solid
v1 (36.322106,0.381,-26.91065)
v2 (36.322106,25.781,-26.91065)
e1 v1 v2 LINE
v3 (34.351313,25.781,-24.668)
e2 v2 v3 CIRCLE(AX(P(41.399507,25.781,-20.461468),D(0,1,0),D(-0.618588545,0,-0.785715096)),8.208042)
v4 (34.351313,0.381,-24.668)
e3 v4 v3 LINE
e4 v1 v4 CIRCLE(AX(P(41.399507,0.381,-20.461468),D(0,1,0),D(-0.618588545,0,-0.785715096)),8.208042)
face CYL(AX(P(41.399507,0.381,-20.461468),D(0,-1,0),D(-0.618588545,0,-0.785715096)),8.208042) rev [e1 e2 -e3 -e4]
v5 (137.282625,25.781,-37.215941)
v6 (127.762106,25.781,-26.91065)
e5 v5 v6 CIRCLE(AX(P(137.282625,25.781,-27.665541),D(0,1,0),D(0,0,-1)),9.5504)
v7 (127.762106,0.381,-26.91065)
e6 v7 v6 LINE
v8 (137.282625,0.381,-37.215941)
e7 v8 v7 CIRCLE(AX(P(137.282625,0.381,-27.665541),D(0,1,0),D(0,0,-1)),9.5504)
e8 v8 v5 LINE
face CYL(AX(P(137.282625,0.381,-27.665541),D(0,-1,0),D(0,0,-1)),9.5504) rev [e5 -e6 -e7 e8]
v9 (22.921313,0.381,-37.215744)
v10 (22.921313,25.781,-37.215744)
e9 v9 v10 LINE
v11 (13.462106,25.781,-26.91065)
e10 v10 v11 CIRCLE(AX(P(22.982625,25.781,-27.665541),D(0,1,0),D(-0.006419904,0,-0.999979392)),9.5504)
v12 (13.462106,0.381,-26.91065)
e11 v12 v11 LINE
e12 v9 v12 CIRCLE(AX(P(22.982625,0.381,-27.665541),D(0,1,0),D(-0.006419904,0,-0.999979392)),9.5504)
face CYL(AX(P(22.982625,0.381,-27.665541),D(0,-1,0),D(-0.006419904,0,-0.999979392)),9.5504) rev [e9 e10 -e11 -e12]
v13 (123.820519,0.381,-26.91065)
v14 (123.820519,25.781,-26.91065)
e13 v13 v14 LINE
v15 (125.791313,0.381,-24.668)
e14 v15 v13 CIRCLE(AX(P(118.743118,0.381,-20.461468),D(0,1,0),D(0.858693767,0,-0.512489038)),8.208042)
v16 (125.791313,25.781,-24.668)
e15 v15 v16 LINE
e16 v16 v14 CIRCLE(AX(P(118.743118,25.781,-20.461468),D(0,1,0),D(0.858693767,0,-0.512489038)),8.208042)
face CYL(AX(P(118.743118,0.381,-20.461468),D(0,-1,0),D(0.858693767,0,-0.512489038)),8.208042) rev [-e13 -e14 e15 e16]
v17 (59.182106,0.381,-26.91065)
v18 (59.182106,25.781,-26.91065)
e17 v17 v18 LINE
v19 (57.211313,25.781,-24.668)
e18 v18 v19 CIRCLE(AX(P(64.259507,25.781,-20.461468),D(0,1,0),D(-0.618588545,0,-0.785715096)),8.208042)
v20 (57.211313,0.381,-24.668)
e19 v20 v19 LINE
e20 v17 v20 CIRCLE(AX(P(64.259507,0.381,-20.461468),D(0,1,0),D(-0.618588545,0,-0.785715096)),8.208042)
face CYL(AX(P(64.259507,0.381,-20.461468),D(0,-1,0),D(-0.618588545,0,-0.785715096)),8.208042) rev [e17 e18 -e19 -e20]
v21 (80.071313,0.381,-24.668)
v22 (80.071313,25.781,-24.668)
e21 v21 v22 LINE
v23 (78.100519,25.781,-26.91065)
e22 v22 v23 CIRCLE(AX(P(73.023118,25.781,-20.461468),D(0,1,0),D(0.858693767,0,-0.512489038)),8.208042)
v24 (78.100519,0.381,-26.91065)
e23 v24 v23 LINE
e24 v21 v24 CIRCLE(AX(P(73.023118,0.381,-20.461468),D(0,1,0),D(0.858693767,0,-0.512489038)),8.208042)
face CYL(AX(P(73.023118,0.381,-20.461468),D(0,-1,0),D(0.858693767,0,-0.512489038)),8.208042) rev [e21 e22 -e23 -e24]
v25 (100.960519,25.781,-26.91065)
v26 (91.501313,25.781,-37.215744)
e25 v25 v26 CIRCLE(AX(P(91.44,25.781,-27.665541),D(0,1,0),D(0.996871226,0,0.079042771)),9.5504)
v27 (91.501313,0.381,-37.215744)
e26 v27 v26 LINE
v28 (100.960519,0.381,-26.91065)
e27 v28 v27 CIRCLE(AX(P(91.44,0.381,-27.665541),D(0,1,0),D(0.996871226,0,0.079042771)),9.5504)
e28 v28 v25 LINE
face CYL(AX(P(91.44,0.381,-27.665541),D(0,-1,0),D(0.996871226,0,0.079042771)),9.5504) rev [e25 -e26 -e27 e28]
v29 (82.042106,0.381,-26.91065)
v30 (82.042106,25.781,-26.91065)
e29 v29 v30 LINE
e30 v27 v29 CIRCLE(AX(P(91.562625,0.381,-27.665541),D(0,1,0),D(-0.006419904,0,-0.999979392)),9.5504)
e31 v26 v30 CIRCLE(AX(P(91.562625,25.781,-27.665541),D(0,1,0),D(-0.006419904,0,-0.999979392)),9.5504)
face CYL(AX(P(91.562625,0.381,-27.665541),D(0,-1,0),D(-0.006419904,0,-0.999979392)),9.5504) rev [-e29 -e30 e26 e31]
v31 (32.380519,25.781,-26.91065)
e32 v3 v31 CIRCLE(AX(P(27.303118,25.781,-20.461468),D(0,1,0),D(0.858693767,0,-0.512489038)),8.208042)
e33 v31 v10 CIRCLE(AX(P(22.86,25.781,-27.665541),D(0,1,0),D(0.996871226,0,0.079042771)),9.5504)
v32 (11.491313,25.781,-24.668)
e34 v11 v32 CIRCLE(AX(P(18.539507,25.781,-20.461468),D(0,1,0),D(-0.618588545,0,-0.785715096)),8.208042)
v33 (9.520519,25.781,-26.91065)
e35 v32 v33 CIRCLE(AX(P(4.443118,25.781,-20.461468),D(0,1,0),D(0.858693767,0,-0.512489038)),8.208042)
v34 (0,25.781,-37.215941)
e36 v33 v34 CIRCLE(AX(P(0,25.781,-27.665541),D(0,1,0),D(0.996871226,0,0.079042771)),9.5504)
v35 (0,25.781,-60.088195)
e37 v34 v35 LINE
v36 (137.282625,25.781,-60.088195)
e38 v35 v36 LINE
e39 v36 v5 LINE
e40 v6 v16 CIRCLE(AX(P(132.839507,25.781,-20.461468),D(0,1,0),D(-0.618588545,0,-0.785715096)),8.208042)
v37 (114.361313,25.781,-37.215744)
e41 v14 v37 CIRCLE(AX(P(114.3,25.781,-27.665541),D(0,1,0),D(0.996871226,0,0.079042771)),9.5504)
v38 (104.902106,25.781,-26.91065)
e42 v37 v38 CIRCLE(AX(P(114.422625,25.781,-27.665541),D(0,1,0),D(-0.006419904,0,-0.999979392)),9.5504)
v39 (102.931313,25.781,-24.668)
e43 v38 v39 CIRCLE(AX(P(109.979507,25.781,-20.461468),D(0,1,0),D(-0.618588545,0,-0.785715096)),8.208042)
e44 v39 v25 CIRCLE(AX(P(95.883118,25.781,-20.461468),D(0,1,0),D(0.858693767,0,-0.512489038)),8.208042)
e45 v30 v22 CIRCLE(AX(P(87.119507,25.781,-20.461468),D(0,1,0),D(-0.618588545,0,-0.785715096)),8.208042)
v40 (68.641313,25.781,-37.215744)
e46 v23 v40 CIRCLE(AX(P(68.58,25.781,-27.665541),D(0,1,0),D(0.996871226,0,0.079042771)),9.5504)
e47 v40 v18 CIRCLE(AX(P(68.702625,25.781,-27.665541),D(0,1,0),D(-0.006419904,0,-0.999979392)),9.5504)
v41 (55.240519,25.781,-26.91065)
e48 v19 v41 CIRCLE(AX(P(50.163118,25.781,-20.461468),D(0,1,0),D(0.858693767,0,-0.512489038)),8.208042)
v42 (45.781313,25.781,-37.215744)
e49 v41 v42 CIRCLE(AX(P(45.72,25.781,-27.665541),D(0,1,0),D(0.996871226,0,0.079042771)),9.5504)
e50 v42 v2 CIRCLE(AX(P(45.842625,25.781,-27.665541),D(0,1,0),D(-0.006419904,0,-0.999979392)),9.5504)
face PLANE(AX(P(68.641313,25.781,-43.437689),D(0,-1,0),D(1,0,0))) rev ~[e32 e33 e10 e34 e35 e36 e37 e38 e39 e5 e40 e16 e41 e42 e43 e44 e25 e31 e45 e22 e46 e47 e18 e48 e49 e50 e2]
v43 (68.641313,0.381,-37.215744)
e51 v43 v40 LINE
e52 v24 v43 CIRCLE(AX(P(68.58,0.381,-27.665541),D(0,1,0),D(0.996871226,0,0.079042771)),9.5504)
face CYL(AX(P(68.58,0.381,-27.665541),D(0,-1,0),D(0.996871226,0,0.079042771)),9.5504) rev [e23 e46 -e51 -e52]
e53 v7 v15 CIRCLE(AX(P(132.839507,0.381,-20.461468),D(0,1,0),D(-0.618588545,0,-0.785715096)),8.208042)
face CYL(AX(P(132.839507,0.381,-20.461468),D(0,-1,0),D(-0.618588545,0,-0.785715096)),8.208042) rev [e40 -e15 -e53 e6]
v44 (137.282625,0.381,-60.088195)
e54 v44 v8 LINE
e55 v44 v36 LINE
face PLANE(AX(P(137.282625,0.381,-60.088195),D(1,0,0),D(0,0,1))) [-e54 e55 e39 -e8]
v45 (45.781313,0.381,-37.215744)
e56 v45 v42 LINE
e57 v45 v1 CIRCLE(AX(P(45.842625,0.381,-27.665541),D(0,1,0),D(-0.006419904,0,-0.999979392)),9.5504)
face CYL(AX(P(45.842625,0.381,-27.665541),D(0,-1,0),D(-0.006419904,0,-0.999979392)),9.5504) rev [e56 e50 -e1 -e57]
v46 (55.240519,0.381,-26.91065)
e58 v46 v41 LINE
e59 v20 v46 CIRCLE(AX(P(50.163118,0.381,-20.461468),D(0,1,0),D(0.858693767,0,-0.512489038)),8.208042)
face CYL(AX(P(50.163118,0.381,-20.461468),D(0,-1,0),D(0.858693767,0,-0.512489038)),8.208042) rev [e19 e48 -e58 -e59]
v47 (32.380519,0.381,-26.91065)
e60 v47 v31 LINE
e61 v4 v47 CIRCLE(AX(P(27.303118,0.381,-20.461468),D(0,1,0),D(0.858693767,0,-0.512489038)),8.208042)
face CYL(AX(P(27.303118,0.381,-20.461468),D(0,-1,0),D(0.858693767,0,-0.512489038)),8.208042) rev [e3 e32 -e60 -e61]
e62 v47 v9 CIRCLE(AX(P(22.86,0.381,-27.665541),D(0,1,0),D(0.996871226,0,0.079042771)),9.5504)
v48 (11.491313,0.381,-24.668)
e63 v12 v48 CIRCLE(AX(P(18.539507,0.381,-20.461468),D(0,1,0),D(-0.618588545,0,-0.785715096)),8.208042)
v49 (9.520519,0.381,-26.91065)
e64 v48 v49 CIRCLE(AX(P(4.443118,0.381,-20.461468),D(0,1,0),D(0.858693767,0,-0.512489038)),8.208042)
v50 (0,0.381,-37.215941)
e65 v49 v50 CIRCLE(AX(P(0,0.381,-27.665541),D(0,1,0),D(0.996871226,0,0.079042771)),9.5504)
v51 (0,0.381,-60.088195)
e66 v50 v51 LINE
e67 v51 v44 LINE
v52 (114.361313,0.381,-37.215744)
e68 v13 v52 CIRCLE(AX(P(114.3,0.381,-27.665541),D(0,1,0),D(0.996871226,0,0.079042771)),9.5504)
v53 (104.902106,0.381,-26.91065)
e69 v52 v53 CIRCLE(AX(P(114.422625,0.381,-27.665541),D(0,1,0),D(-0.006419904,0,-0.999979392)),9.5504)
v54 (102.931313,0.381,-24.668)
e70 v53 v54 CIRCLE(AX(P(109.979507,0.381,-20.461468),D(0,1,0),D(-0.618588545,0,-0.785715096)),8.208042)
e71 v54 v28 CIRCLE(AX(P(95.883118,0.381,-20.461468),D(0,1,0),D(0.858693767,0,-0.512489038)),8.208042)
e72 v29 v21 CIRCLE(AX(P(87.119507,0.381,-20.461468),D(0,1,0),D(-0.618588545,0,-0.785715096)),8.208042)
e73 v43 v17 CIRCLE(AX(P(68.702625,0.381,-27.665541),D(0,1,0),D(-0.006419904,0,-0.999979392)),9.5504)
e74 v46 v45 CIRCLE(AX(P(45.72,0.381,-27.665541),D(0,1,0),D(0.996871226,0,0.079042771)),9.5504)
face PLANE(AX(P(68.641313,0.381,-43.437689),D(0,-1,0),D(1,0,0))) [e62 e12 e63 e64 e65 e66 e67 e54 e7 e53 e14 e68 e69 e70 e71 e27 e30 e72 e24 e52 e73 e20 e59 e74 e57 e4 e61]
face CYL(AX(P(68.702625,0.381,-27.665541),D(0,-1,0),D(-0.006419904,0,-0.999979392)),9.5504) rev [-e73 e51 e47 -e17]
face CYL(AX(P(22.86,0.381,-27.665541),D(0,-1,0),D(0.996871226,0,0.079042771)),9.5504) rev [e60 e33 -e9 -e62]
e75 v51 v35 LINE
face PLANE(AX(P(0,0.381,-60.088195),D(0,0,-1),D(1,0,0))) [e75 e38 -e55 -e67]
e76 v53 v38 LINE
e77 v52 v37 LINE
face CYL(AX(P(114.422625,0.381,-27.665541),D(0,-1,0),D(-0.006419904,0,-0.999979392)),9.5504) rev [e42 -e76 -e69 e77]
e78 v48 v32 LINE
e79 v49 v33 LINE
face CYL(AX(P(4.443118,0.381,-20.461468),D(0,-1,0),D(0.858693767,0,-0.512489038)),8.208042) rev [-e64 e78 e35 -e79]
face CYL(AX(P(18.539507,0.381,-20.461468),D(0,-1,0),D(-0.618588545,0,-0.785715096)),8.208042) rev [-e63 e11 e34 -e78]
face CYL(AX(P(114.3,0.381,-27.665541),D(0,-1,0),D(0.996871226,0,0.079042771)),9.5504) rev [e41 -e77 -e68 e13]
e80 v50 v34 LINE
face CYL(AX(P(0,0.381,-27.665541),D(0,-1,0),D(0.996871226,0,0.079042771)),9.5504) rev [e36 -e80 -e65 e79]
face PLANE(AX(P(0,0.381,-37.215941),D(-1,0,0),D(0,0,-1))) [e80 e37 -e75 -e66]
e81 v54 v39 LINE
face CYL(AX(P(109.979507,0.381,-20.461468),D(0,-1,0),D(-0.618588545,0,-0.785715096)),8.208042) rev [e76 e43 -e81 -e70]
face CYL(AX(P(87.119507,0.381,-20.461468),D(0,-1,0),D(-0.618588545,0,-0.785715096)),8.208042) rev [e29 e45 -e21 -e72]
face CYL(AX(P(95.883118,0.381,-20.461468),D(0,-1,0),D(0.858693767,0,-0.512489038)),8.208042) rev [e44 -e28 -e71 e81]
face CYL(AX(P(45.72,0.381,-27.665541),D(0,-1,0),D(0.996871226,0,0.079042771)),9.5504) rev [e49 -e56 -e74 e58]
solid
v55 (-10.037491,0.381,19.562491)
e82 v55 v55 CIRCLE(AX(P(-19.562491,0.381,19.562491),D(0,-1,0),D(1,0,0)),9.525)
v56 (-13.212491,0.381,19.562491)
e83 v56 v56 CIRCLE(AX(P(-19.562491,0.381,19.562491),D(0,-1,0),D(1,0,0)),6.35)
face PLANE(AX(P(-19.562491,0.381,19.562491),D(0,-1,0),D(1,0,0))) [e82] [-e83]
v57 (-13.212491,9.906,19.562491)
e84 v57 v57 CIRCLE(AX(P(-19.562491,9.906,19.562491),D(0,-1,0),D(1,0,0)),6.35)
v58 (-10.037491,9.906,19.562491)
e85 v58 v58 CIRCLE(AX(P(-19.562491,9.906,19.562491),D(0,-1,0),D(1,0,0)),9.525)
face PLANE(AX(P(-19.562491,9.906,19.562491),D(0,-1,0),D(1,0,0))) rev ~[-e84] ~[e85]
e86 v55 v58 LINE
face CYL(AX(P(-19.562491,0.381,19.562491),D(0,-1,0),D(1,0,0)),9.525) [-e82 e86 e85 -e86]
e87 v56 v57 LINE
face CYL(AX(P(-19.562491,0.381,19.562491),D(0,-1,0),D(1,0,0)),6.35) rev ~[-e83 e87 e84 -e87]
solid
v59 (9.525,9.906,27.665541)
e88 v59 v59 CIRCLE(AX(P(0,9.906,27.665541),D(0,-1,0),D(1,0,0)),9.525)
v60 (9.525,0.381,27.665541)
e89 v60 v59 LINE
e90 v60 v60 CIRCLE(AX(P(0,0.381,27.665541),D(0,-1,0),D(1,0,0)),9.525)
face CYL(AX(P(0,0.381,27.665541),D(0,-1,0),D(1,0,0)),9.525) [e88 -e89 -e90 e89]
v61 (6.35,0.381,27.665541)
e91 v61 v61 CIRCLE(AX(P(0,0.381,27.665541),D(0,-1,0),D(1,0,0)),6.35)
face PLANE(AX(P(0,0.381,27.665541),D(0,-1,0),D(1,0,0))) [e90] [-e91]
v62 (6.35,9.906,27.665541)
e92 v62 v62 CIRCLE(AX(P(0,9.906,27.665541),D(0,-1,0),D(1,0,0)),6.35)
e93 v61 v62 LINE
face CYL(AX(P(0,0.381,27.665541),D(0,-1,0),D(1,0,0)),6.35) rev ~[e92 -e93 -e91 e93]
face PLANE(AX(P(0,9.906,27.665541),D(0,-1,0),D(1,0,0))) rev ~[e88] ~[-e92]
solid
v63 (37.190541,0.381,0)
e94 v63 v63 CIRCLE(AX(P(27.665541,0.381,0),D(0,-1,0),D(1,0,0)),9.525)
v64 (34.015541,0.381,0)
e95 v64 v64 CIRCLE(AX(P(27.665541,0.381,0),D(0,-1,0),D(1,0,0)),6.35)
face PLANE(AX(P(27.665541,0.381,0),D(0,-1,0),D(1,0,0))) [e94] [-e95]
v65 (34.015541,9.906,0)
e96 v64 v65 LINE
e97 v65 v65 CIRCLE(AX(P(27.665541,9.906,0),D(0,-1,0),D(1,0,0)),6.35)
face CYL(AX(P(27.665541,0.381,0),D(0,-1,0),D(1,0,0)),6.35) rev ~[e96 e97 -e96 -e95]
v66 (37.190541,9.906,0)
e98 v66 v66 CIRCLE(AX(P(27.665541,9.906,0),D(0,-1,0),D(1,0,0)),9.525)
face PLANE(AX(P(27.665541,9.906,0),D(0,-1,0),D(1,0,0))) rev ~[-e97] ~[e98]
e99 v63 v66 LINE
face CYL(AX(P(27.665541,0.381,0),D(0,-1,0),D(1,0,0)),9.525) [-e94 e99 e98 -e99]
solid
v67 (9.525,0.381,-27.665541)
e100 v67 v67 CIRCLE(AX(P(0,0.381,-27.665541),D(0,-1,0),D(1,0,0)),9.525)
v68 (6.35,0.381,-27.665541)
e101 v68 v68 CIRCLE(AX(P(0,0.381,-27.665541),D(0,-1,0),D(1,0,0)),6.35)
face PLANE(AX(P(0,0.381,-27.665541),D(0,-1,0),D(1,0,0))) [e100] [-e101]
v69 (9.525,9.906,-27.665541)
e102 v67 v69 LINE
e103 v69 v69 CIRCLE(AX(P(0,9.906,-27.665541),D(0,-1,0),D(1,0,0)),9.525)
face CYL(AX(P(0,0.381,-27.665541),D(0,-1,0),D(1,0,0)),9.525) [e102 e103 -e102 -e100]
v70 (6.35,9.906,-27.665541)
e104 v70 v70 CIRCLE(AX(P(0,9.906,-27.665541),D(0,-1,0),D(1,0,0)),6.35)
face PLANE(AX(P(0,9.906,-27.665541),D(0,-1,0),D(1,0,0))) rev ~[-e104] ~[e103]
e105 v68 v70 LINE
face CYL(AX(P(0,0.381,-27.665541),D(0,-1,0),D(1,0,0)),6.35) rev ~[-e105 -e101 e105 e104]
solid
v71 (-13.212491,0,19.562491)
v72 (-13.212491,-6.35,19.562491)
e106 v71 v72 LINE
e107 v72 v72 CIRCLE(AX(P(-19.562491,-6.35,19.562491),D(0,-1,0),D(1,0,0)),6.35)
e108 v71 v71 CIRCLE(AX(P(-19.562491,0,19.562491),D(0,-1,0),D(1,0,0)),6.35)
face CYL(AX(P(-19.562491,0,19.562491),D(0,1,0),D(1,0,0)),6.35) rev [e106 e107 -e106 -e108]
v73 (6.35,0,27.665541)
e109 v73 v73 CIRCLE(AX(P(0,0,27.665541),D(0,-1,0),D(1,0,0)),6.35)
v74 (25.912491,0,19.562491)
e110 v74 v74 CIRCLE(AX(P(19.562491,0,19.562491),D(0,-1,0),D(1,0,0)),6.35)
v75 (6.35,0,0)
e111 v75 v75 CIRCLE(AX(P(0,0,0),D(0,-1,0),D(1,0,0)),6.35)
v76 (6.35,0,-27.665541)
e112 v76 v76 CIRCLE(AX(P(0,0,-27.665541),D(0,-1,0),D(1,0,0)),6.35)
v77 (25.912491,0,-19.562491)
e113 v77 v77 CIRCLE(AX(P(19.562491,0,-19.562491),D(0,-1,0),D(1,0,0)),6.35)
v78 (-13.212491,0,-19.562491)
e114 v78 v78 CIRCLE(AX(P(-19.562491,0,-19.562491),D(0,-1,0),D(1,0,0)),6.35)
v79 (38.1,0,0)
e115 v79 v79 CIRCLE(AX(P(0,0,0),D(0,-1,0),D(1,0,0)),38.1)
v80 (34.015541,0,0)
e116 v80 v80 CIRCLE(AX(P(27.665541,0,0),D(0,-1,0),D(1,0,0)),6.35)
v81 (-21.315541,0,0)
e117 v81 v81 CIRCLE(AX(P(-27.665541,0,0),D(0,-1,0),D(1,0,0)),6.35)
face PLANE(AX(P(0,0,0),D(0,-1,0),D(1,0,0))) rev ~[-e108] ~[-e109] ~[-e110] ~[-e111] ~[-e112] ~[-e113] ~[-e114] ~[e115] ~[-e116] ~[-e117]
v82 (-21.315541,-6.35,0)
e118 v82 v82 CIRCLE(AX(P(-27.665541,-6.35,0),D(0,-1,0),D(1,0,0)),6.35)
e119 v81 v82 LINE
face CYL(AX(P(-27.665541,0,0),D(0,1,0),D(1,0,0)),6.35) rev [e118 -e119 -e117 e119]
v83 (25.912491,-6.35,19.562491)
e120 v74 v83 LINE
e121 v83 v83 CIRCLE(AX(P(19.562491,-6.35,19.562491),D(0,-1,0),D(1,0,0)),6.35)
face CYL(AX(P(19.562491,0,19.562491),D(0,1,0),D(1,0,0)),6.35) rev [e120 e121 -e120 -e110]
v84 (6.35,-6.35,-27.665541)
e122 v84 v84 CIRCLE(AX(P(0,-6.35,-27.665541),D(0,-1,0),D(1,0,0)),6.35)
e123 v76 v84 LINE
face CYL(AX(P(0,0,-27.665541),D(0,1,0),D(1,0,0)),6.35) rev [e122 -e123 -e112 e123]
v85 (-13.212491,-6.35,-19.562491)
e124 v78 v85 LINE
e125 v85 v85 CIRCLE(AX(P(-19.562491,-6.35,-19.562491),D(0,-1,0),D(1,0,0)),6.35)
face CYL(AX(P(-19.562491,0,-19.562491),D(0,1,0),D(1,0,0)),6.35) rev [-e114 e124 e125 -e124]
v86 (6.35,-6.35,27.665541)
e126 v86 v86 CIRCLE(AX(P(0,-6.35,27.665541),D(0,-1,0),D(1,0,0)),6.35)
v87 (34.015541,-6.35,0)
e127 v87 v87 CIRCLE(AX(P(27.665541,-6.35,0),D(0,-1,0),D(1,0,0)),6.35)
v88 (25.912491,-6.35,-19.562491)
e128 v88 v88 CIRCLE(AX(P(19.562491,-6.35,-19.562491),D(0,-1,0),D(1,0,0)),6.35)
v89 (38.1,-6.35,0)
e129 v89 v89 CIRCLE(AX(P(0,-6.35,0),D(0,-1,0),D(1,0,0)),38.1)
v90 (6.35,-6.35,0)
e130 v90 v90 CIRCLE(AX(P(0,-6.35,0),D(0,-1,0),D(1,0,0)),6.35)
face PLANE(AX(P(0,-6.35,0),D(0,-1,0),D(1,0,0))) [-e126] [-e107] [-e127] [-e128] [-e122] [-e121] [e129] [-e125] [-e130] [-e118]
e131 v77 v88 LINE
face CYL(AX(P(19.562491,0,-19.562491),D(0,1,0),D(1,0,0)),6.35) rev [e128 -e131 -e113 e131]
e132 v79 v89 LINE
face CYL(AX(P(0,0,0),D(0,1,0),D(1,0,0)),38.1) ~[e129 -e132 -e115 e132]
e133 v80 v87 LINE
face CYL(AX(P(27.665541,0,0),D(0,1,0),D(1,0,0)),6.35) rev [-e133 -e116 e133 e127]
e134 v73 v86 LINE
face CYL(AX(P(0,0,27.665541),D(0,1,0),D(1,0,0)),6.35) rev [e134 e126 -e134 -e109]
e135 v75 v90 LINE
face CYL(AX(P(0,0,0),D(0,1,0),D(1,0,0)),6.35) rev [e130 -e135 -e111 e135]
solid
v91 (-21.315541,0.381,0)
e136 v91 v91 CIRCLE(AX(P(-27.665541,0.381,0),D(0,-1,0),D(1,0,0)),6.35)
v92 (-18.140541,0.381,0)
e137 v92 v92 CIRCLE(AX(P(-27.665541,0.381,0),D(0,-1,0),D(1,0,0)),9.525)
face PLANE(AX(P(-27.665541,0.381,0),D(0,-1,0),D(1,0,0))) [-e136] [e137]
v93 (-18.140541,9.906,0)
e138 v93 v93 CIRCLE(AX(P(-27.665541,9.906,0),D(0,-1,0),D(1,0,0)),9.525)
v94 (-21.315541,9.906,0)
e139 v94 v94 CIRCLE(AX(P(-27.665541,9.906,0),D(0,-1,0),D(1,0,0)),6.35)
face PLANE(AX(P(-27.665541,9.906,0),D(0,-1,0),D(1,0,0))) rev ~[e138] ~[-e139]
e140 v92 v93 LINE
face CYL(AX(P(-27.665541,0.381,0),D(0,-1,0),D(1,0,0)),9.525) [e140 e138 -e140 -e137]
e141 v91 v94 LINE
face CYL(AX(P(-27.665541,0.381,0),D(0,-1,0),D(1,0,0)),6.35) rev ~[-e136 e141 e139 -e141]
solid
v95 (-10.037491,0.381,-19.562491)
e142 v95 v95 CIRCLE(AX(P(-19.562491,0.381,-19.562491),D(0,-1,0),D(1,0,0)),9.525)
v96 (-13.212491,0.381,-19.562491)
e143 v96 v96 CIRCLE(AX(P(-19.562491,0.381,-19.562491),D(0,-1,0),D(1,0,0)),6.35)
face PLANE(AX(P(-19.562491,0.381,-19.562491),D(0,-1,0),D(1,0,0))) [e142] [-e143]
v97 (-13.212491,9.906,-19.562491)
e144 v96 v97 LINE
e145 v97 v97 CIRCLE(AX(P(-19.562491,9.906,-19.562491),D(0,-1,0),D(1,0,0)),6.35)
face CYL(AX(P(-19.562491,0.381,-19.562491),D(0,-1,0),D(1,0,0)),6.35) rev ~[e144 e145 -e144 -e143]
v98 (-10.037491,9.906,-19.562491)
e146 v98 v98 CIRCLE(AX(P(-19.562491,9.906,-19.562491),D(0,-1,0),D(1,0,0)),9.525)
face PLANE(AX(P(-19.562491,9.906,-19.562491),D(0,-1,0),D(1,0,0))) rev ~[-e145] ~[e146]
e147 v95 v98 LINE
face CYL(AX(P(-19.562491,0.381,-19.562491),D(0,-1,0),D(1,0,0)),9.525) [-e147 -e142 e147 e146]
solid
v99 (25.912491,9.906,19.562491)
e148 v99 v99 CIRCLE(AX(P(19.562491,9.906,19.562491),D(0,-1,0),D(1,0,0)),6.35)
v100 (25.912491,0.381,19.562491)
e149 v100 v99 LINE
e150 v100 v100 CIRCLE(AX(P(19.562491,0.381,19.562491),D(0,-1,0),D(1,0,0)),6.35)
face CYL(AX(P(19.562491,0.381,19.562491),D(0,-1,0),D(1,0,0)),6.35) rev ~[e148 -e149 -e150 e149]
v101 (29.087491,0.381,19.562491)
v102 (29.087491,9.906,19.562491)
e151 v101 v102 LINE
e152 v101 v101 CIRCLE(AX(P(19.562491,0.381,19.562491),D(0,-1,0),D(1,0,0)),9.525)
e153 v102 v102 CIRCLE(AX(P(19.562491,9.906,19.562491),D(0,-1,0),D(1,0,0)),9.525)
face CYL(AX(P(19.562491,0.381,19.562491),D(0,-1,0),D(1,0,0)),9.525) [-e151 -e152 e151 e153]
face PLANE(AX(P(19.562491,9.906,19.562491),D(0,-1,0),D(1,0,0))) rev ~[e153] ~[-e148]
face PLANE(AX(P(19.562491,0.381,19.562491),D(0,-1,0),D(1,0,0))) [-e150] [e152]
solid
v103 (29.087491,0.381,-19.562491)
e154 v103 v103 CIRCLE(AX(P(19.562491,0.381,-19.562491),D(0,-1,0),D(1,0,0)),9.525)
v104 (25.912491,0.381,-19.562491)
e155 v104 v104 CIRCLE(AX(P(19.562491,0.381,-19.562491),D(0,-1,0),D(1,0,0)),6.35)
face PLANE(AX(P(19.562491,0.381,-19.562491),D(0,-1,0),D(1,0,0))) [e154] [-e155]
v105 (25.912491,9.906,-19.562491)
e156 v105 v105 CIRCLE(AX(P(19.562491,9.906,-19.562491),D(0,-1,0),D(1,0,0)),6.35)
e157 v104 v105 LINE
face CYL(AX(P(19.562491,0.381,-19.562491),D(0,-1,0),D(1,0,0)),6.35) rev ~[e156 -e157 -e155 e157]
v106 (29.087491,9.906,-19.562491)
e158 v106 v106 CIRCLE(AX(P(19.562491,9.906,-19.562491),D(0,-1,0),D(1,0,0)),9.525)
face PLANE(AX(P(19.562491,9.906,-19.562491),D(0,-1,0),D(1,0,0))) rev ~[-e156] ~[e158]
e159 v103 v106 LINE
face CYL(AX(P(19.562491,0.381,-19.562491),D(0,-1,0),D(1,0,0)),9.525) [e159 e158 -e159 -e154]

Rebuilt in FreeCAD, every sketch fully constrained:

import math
import FreeCAD as App
import Part
import Sketcher

V = App.Vector
Q = App.Units.Quantity

doc = App.newDocument("Part")
body = doc.addObject("PartDesign::Body", "Body")

sketch1 = body.newObject("Sketcher::SketchObject", "Sketch")
sketch1.AttachmentSupport = (doc.getObject("XZ_Plane"), [""])
sketch1.MapMode = "FlatFace"
sketch1.addGeometry(Part.Circle(V(0, 0, 0), V(0, 0, 1), 38), False)
sketch1.addGeometry(Part.Circle(V(-20, -20, 0), V(0, 0, 1), 6), False)
sketch1.addGeometry(Part.Circle(V(0, -28, 0), V(0, 0, 1), 6), False)
sketch1.addGeometry(Part.Circle(V(20, -20, 0), V(0, 0, 1), 6), False)
sketch1.addGeometry(Part.Circle(V(-28, 0, 0), V(0, 0, 1), 6), False)
sketch1.addGeometry(Part.Circle(V(-20, 20, 0), V(0, 0, 1), 6), False)
sketch1.addGeometry(Part.Circle(V(0, 0, 0), V(0, 0, 1), 6), False)
sketch1.addGeometry(Part.Circle(V(28, 0, 0), V(0, 0, 1), 6), False)
sketch1.addGeometry(Part.Circle(V(0, 28, 0), V(0, 0, 1), 6), False)
sketch1.addGeometry(Part.Circle(V(20, 20, 0), V(0, 0, 1), 6), False)
sketch1.addConstraint(Sketcher.Constraint("Coincident", 0, 3, -1, 1))
sketch1.addConstraint(Sketcher.Constraint("Coincident", 6, 3, -1, 1))
sketch1.addConstraint(Sketcher.Constraint("Equal", 1, 2))
sketch1.addConstraint(Sketcher.Constraint("Equal", 2, 3))
sketch1.addConstraint(Sketcher.Constraint("Equal", 3, 4))
sketch1.addConstraint(Sketcher.Constraint("Equal", 4, 5))
sketch1.addConstraint(Sketcher.Constraint("Equal", 5, 6))
sketch1.addConstraint(Sketcher.Constraint("Equal", 6, 7))
sketch1.addConstraint(Sketcher.Constraint("Equal", 7, 8))
sketch1.addConstraint(Sketcher.Constraint("Equal", 8, 9))
sketch1.addConstraint(Sketcher.Constraint("Symmetric", 3, 3, 5, 3, -1, 1))
sketch1.addConstraint(Sketcher.Constraint("Symmetric", 4, 3, 7, 3, -1, 1))
sketch1.addConstraint(Sketcher.Constraint("Symmetric", 2, 3, 8, 3, -1, 1))
sketch1.addConstraint(Sketcher.Constraint("Symmetric", 1, 3, 9, 3, -1, 1))
sketch1.addConstraint(Sketcher.Constraint("Symmetric", 1, 3, 3, 3, -2))
sketch1.addConstraint(Sketcher.Constraint("PointOnObject", 2, 3, -2))
sketch1.addConstraint(Sketcher.Constraint("PointOnObject", 4, 3, -1))
sketch1.addConstraint(Sketcher.Constraint("Diameter", 0, Q("3 in")))
sketch1.addConstraint(Sketcher.Constraint("Diameter", 1, Q("0.5 in")))
sketch1.addConstraint(Sketcher.Constraint("DistanceX", 1, 3, -1, 1, Q("19.562491 mm")))
sketch1.addConstraint(Sketcher.Constraint("DistanceY", 1, 3, -1, 1, Q("19.562491 mm")))
sketch1.addConstraint(Sketcher.Constraint("DistanceY", 2, 3, -1, 1, Q("27.665541 mm")))
sketch1.addConstraint(Sketcher.Constraint("DistanceX", 4, 3, -1, 1, Q("27.665541 mm")))
pad1 = body.newObject("PartDesign::Pad", "Pad")
pad1.Profile = sketch1
pad1.Length = Q("0.25 in")
body2 = doc.addObject("PartDesign::Body", "Body001")

sketch2 = body2.newObject("Sketcher::SketchObject", "Sketch001")
sketch2.AttachmentSupport = (doc.getObject("XZ_Plane001"), [""])
sketch2.MapMode = "FlatFace"
sketch2.AttachmentOffset = App.Placement(V(0, 0, -0.015 * 25.4), App.Rotation())
sketch2.addGeometry(Part.Circle(V(0, -28, 0), V(0, 0, 1), 10), False)
sketch2.addGeometry(Part.Circle(V(0, -28, 0), V(0, 0, 1), 6), False)
sketch2.addConstraint(Sketcher.Constraint("Coincident", 1, 3, 0, 3))
sketch2.addConstraint(Sketcher.Constraint("PointOnObject", 0, 3, -2))
sketch2.addConstraint(Sketcher.Constraint("Diameter", 1, Q("0.5 in")))
sketch2.addConstraint(Sketcher.Constraint("Diameter", 0, Q("0.75 in")))
sketch2.addConstraint(Sketcher.Constraint("DistanceY", 0, 3, -1, 1, Q("27.665541 mm")))
pad2 = body2.newObject("PartDesign::Pad", "Pad001")
pad2.Profile = sketch2
pad2.Length = Q("0.375 in")
pad2.Reversed = True
body3 = doc.addObject("PartDesign::Body", "Body002")

sketch3 = body3.newObject("Sketcher::SketchObject", "Sketch002")
sketch3.AttachmentSupport = (doc.getObject("XZ_Plane002"), [""])
sketch3.MapMode = "FlatFace"
sketch3.AttachmentOffset = App.Placement(V(0, 0, -0.015 * 25.4), App.Rotation())
sketch3.addGeometry(Part.Circle(V(20, -20, 0), V(0, 0, 1), 10), False)
sketch3.addGeometry(Part.Circle(V(20, -20, 0), V(0, 0, 1), 6), False)
sketch3.addConstraint(Sketcher.Constraint("Coincident", 1, 3, 0, 3))
sketch3.addConstraint(Sketcher.Constraint("Diameter", 1, Q("0.5 in")))
sketch3.addConstraint(Sketcher.Constraint("Diameter", 0, Q("0.75 in")))
sketch3.addConstraint(Sketcher.Constraint("DistanceX", -1, 1, 0, 3, Q("19.562491 mm")))
sketch3.addConstraint(Sketcher.Constraint("DistanceY", 0, 3, -1, 1, Q("19.562491 mm")))
pad3 = body3.newObject("PartDesign::Pad", "Pad002")
pad3.Profile = sketch3
pad3.Length = Q("0.375 in")
pad3.Reversed = True
body4 = doc.addObject("PartDesign::Body", "Body003")

sketch4 = body4.newObject("Sketcher::SketchObject", "Sketch003")
sketch4.AttachmentSupport = (doc.getObject("XZ_Plane003"), [""])
sketch4.MapMode = "FlatFace"
sketch4.AttachmentOffset = App.Placement(V(0, 0, -0.015 * 25.4), App.Rotation())
sketch4.addGeometry(Part.Circle(V(28, 0, 0), V(0, 0, 1), 10), False)
sketch4.addGeometry(Part.Circle(V(28, 0, 0), V(0, 0, 1), 6), False)
sketch4.addConstraint(Sketcher.Constraint("Coincident", 1, 3, 0, 3))
sketch4.addConstraint(Sketcher.Constraint("PointOnObject", 0, 3, -1))
sketch4.addConstraint(Sketcher.Constraint("Diameter", 1, Q("0.5 in")))
sketch4.addConstraint(Sketcher.Constraint("Diameter", 0, Q("0.75 in")))
sketch4.addConstraint(Sketcher.Constraint("DistanceX", -1, 1, 0, 3, Q("27.665541 mm")))
pad4 = body4.newObject("PartDesign::Pad", "Pad003")
pad4.Profile = sketch4
pad4.Length = Q("0.375 in")
pad4.Reversed = True
body5 = doc.addObject("PartDesign::Body", "Body004")

sketch5 = body5.newObject("Sketcher::SketchObject", "Sketch004")
sketch5.AttachmentSupport = (doc.getObject("XZ_Plane004"), [""])
sketch5.MapMode = "FlatFace"
sketch5.AttachmentOffset = App.Placement(V(0, 0, -0.015 * 25.4), App.Rotation())
sketch5.addGeometry(Part.Circle(V(20, 20, 0), V(0, 0, 1), 10), False)
sketch5.addGeometry(Part.Circle(V(20, 20, 0), V(0, 0, 1), 6), False)
sketch5.addConstraint(Sketcher.Constraint("Coincident", 1, 3, 0, 3))
sketch5.addConstraint(Sketcher.Constraint("Diameter", 1, Q("0.5 in")))
sketch5.addConstraint(Sketcher.Constraint("Diameter", 0, Q("0.75 in")))
sketch5.addConstraint(Sketcher.Constraint("DistanceX", -1, 1, 0, 3, Q("19.562491 mm")))
sketch5.addConstraint(Sketcher.Constraint("DistanceY", -1, 1, 0, 3, Q("19.562491 mm")))
pad5 = body5.newObject("PartDesign::Pad", "Pad004")
pad5.Profile = sketch5
pad5.Length = Q("0.375 in")
pad5.Reversed = True
body6 = doc.addObject("PartDesign::Body", "Body005")

sketch6 = body6.newObject("Sketcher::SketchObject", "Sketch005")
sketch6.AttachmentSupport = (doc.getObject("XZ_Plane005"), [""])
sketch6.MapMode = "FlatFace"
sketch6.AttachmentOffset = App.Placement(V(0, 0, -0.015 * 25.4), App.Rotation())
sketch6.addGeometry(Part.Circle(V(0, 28, 0), V(0, 0, 1), 10), False)
sketch6.addGeometry(Part.Circle(V(0, 28, 0), V(0, 0, 1), 6), False)
sketch6.addConstraint(Sketcher.Constraint("Coincident", 1, 3, 0, 3))
sketch6.addConstraint(Sketcher.Constraint("PointOnObject", 0, 3, -2))
sketch6.addConstraint(Sketcher.Constraint("Diameter", 1, Q("0.5 in")))
sketch6.addConstraint(Sketcher.Constraint("Diameter", 0, Q("0.75 in")))
sketch6.addConstraint(Sketcher.Constraint("DistanceY", -1, 1, 0, 3, Q("27.665541 mm")))
pad6 = body6.newObject("PartDesign::Pad", "Pad005")
pad6.Profile = sketch6
pad6.Length = Q("0.375 in")
pad6.Reversed = True
body7 = doc.addObject("PartDesign::Body", "Body006")

sketch7 = body7.newObject("Sketcher::SketchObject", "Sketch006")
sketch7.AttachmentSupport = (doc.getObject("XZ_Plane006"), [""])
sketch7.MapMode = "FlatFace"
sketch7.AttachmentOffset = App.Placement(V(0, 0, -0.015 * 25.4), App.Rotation())
sketch7.addGeometry(Part.Circle(V(-20, 20, 0), V(0, 0, 1), 10), False)
sketch7.addGeometry(Part.Circle(V(-20, 20, 0), V(0, 0, 1), 6), False)
sketch7.addConstraint(Sketcher.Constraint("Coincident", 1, 3, 0, 3))
sketch7.addConstraint(Sketcher.Constraint("Diameter", 1, Q("0.5 in")))
sketch7.addConstraint(Sketcher.Constraint("Diameter", 0, Q("0.75 in")))
sketch7.addConstraint(Sketcher.Constraint("DistanceX", 0, 3, -1, 1, Q("19.562491 mm")))
sketch7.addConstraint(Sketcher.Constraint("DistanceY", -1, 1, 0, 3, Q("19.562491 mm")))
pad7 = body7.newObject("PartDesign::Pad", "Pad006")
pad7.Profile = sketch7
pad7.Length = Q("0.375 in")
pad7.Reversed = True
body8 = doc.addObject("PartDesign::Body", "Body007")

sketch8 = body8.newObject("Sketcher::SketchObject", "Sketch007")
sketch8.AttachmentSupport = (doc.getObject("XZ_Plane007"), [""])
sketch8.MapMode = "FlatFace"
sketch8.AttachmentOffset = App.Placement(V(0, 0, -0.015 * 25.4), App.Rotation())
sketch8.addGeometry(Part.Circle(V(-28, 0, 0), V(0, 0, 1), 10), False)
sketch8.addGeometry(Part.Circle(V(-28, 0, 0), V(0, 0, 1), 6), False)
sketch8.addConstraint(Sketcher.Constraint("Coincident", 1, 3, 0, 3))
sketch8.addConstraint(Sketcher.Constraint("PointOnObject", 0, 3, -1))
sketch8.addConstraint(Sketcher.Constraint("Diameter", 1, Q("0.5 in")))
sketch8.addConstraint(Sketcher.Constraint("Diameter", 0, Q("0.75 in")))
sketch8.addConstraint(Sketcher.Constraint("DistanceX", 0, 3, -1, 1, Q("27.665541 mm")))
pad8 = body8.newObject("PartDesign::Pad", "Pad007")
pad8.Profile = sketch8
pad8.Length = Q("0.375 in")
pad8.Reversed = True
body9 = doc.addObject("PartDesign::Body", "Body008")

sketch9 = body9.newObject("Sketcher::SketchObject", "Sketch008")
sketch9.AttachmentSupport = (doc.getObject("XZ_Plane008"), [""])
sketch9.MapMode = "FlatFace"
sketch9.AttachmentOffset = App.Placement(V(0, 0, -0.015 * 25.4), App.Rotation())
sketch9.addGeometry(Part.Circle(V(-20, -20, 0), V(0, 0, 1), 10), False)
sketch9.addGeometry(Part.Circle(V(-20, -20, 0), V(0, 0, 1), 6), False)
sketch9.addConstraint(Sketcher.Constraint("Coincident", 1, 3, 0, 3))
sketch9.addConstraint(Sketcher.Constraint("Diameter", 1, Q("0.5 in")))
sketch9.addConstraint(Sketcher.Constraint("Diameter", 0, Q("0.75 in")))
sketch9.addConstraint(Sketcher.Constraint("DistanceX", 0, 3, -1, 1, Q("19.562491 mm")))
sketch9.addConstraint(Sketcher.Constraint("DistanceY", 0, 3, -1, 1, Q("19.562491 mm")))
pad9 = body9.newObject("PartDesign::Pad", "Pad008")
pad9.Profile = sketch9
pad9.Length = Q("0.375 in")
pad9.Reversed = True
body10 = doc.addObject("PartDesign::Body", "Body009")

sketch10 = body10.newObject("Sketcher::SketchObject", "Sketch009")
sketch10.AttachmentSupport = (doc.getObject("XZ_Plane009"), [""])
sketch10.MapMode = "FlatFace"
sketch10.AttachmentOffset = App.Placement(V(0, 0, -0.015 * 25.4), App.Rotation())
sketch10.addGeometry(Part.ArcOfCircle(Part.Circle(V(22.982625, -27.665541, 0), V(0, 0, 1), 9.5504), math.radians(175.466454), math.radians(269.632164)), False)
sketch10.addGeometry(Part.ArcOfCircle(Part.Circle(V(18.539507, -20.461468, 0), V(0, 0, 1), 8.208042), math.radians(-149.170234), math.radians(-128.213136)), False)
sketch10.addGeometry(Part.ArcOfCircle(Part.Circle(V(4.443118, -20.461468, 0), V(0, 0, 1), 8.208042), math.radians(-51.786864), math.radians(-30.829766)), False)
sketch10.addGeometry(Part.ArcOfCircle(Part.Circle(V(0, -27.665541, 0), V(0, 0, 1), 9.5504), math.radians(-90), math.radians(4.533546)), False)
sketch10.addGeometry(Part.LineSegment(V(0, -37.215941, 0), V(0, -60.088195, 0)), False)
sketch10.addGeometry(Part.LineSegment(V(0, -60.088195, 0), V(137.282625, -60.088195, 0)), False)
sketch10.addGeometry(Part.LineSegment(V(137.282625, -60.088195, 0), V(137.282625, -37.215941, 0)), False)
sketch10.addGeometry(Part.ArcOfCircle(Part.Circle(V(137.282625, -27.665541, 0), V(0, 0, 1), 9.5504), math.radians(175.466454), math.radians(270)), False)
sketch10.addGeometry(Part.ArcOfCircle(Part.Circle(V(132.839507, -20.461468, 0), V(0, 0, 1), 8.208042), math.radians(-149.170234), math.radians(-128.213136)), False)
sketch10.addGeometry(Part.ArcOfCircle(Part.Circle(V(118.743118, -20.461468, 0), V(0, 0, 1), 8.208042), math.radians(-51.786864), math.radians(-30.829766)), False)
sketch10.addGeometry(Part.ArcOfCircle(Part.Circle(V(114.3, -27.665541, 0), V(0, 0, 1), 9.5504), math.radians(-89.632164), math.radians(4.533546)), False)
sketch10.addGeometry(Part.ArcOfCircle(Part.Circle(V(114.422625, -27.665541, 0), V(0, 0, 1), 9.5504), math.radians(175.466454), math.radians(269.632164)), False)
sketch10.addGeometry(Part.ArcOfCircle(Part.Circle(V(109.979507, -20.461468, 0), V(0, 0, 1), 8.208042), math.radians(-149.170234), math.radians(-128.213136)), False)
sketch10.addGeometry(Part.ArcOfCircle(Part.Circle(V(95.883118, -20.461468, 0), V(0, 0, 1), 8.208042), math.radians(-51.786864), math.radians(-30.829766)), False)
sketch10.addGeometry(Part.ArcOfCircle(Part.Circle(V(91.44, -27.665541, 0), V(0, 0, 1), 9.5504), math.radians(-89.632164), math.radians(4.533546)), False)
sketch10.addGeometry(Part.ArcOfCircle(Part.Circle(V(91.562625, -27.665541, 0), V(0, 0, 1), 9.5504), math.radians(175.466454), math.radians(269.632164)), False)
sketch10.addGeometry(Part.ArcOfCircle(Part.Circle(V(87.119507, -20.461468, 0), V(0, 0, 1), 8.208042), math.radians(-149.170234), math.radians(-128.213136)), False)
sketch10.addGeometry(Part.ArcOfCircle(Part.Circle(V(73.023118, -20.461468, 0), V(0, 0, 1), 8.208042), math.radians(-51.786864), math.radians(-30.829766)), False)
sketch10.addGeometry(Part.ArcOfCircle(Part.Circle(V(68.58, -27.665541, 0), V(0, 0, 1), 9.5504), math.radians(-89.632164), math.radians(4.533546)), False)
sketch10.addGeometry(Part.ArcOfCircle(Part.Circle(V(68.702625, -27.665541, 0), V(0, 0, 1), 9.5504), math.radians(175.466454), math.radians(269.632164)), False)
sketch10.addGeometry(Part.ArcOfCircle(Part.Circle(V(64.259507, -20.461468, 0), V(0, 0, 1), 8.208042), math.radians(-149.170234), math.radians(-128.213136)), False)
sketch10.addGeometry(Part.ArcOfCircle(Part.Circle(V(50.163118, -20.461468, 0), V(0, 0, 1), 8.208042), math.radians(-51.786864), math.radians(-30.829766)), False)
sketch10.addGeometry(Part.ArcOfCircle(Part.Circle(V(45.72, -27.665541, 0), V(0, 0, 1), 9.5504), math.radians(-89.632164), math.radians(4.533546)), False)
sketch10.addGeometry(Part.ArcOfCircle(Part.Circle(V(45.842625, -27.665541, 0), V(0, 0, 1), 9.5504), math.radians(175.466454), math.radians(269.632164)), False)
sketch10.addGeometry(Part.ArcOfCircle(Part.Circle(V(41.399507, -20.461468, 0), V(0, 0, 1), 8.208042), math.radians(-149.170234), math.radians(-128.213136)), False)
sketch10.addGeometry(Part.ArcOfCircle(Part.Circle(V(27.303118, -20.461468, 0), V(0, 0, 1), 8.208042), math.radians(-51.786864), math.radians(-30.829766)), False)
sketch10.addGeometry(Part.ArcOfCircle(Part.Circle(V(22.86, -27.665541, 0), V(0, 0, 1), 9.5504), math.radians(-89.632164), math.radians(4.533546)), False)
sketch10.addConstraint(Sketcher.Constraint("Coincident", 0, 1, 1, 2))
sketch10.addConstraint(Sketcher.Constraint("Coincident", 1, 1, 2, 2))
sketch10.addConstraint(Sketcher.Constraint("Coincident", 2, 1, 3, 2))
sketch10.addConstraint(Sketcher.Constraint("Coincident", 3, 1, 4, 1))
sketch10.addConstraint(Sketcher.Constraint("Coincident", 4, 2, 5, 1))
sketch10.addConstraint(Sketcher.Constraint("Coincident", 5, 2, 6, 1))
sketch10.addConstraint(Sketcher.Constraint("Coincident", 6, 2, 7, 2))
sketch10.addConstraint(Sketcher.Constraint("Coincident", 7, 1, 8, 2))
sketch10.addConstraint(Sketcher.Constraint("Coincident", 8, 1, 9, 2))
sketch10.addConstraint(Sketcher.Constraint("Coincident", 9, 1, 10, 2))
sketch10.addConstraint(Sketcher.Constraint("Coincident", 10, 1, 11, 2))
sketch10.addConstraint(Sketcher.Constraint("Coincident", 11, 1, 12, 2))
sketch10.addConstraint(Sketcher.Constraint("Coincident", 12, 1, 13, 2))
sketch10.addConstraint(Sketcher.Constraint("Coincident", 13, 1, 14, 2))
sketch10.addConstraint(Sketcher.Constraint("Coincident", 14, 1, 15, 2))
sketch10.addConstraint(Sketcher.Constraint("Coincident", 15, 1, 16, 2))
sketch10.addConstraint(Sketcher.Constraint("Coincident", 16, 1, 17, 2))
sketch10.addConstraint(Sketcher.Constraint("Coincident", 17, 1, 18, 2))
sketch10.addConstraint(Sketcher.Constraint("Coincident", 18, 1, 19, 2))
sketch10.addConstraint(Sketcher.Constraint("Coincident", 19, 1, 20, 2))
sketch10.addConstraint(Sketcher.Constraint("Coincident", 20, 1, 21, 2))
sketch10.addConstraint(Sketcher.Constraint("Coincident", 21, 1, 22, 2))
sketch10.addConstraint(Sketcher.Constraint("Coincident", 22, 1, 23, 2))
sketch10.addConstraint(Sketcher.Constraint("Coincident", 23, 1, 24, 2))
sketch10.addConstraint(Sketcher.Constraint("Coincident", 24, 1, 25, 2))
sketch10.addConstraint(Sketcher.Constraint("Coincident", 25, 1, 26, 2))
sketch10.addConstraint(Sketcher.Constraint("Coincident", 26, 1, 0, 2))
sketch10.addConstraint(Sketcher.Constraint("Vertical", 4))
sketch10.addConstraint(Sketcher.Constraint("Horizontal", 5))
sketch10.addConstraint(Sketcher.Constraint("Vertical", 6))
sketch10.addConstraint(Sketcher.Constraint("Equal", 1, 2))
sketch10.addConstraint(Sketcher.Constraint("Equal", 0, 3))
sketch10.addConstraint(Sketcher.Constraint("Equal", 3, 7))
sketch10.addConstraint(Sketcher.Constraint("Equal", 2, 8))
sketch10.addConstraint(Sketcher.Constraint("Equal", 8, 9))
sketch10.addConstraint(Sketcher.Constraint("Equal", 7, 10))
sketch10.addConstraint(Sketcher.Constraint("Equal", 10, 11))
sketch10.addConstraint(Sketcher.Constraint("Equal", 9, 12))
sketch10.addConstraint(Sketcher.Constraint("Equal", 12, 13))
sketch10.addConstraint(Sketcher.Constraint("Equal", 11, 14))
sketch10.addConstraint(Sketcher.Constraint("Equal", 14, 15))
sketch10.addConstraint(Sketcher.Constraint("Equal", 13, 16))
sketch10.addConstraint(Sketcher.Constraint("Equal", 16, 17))
sketch10.addConstraint(Sketcher.Constraint("Equal", 15, 18))
sketch10.addConstraint(Sketcher.Constraint("Equal", 18, 19))
sketch10.addConstraint(Sketcher.Constraint("Equal", 17, 20))
sketch10.addConstraint(Sketcher.Constraint("Equal", 20, 21))
sketch10.addConstraint(Sketcher.Constraint("Equal", 19, 22))
sketch10.addConstraint(Sketcher.Constraint("Equal", 22, 23))
sketch10.addConstraint(Sketcher.Constraint("Equal", 21, 24))
sketch10.addConstraint(Sketcher.Constraint("Equal", 24, 25))
sketch10.addConstraint(Sketcher.Constraint("Equal", 23, 26))
sketch10.addConstraint(Sketcher.Constraint("PointOnObject", 3, 3, -2))
sketch10.addConstraint(Sketcher.Constraint("PointOnObject", 3, 1, -2))
sketch10.addConstraint(Sketcher.Constraint("Horizontal", 1, 3, 2, 3))
sketch10.addConstraint(Sketcher.Constraint("Horizontal", 0, 3, 3, 3))
sketch10.addConstraint(Sketcher.Constraint("Horizontal", 3, 3, 7, 3))
sketch10.addConstraint(Sketcher.Constraint("Horizontal", 2, 3, 8, 3))
sketch10.addConstraint(Sketcher.Constraint("Horizontal", 8, 3, 9, 3))
sketch10.addConstraint(Sketcher.Constraint("Horizontal", 7, 3, 10, 3))
sketch10.addConstraint(Sketcher.Constraint("Horizontal", 10, 3, 11, 3))
sketch10.addConstraint(Sketcher.Constraint("Horizontal", 9, 3, 12, 3))
sketch10.addConstraint(Sketcher.Constraint("Horizontal", 12, 3, 13, 3))
sketch10.addConstraint(Sketcher.Constraint("Horizontal", 11, 3, 14, 3))
sketch10.addConstraint(Sketcher.Constraint("Horizontal", 14, 3, 15, 3))
sketch10.addConstraint(Sketcher.Constraint("Horizontal", 13, 3, 16, 3))
sketch10.addConstraint(Sketcher.Constraint("Horizontal", 16, 3, 17, 3))
sketch10.addConstraint(Sketcher.Constraint("Horizontal", 15, 3, 18, 3))
sketch10.addConstraint(Sketcher.Constraint("Horizontal", 18, 3, 19, 3))
sketch10.addConstraint(Sketcher.Constraint("Horizontal", 17, 3, 20, 3))
sketch10.addConstraint(Sketcher.Constraint("Horizontal", 20, 3, 21, 3))
sketch10.addConstraint(Sketcher.Constraint("Horizontal", 19, 3, 22, 3))
sketch10.addConstraint(Sketcher.Constraint("Horizontal", 22, 3, 23, 3))
sketch10.addConstraint(Sketcher.Constraint("Horizontal", 21, 3, 24, 3))
sketch10.addConstraint(Sketcher.Constraint("Horizontal", 24, 3, 25, 3))
sketch10.addConstraint(Sketcher.Constraint("Horizontal", 23, 3, 26, 3))
sketch10.addConstraint(Sketcher.Constraint("Horizontal", 0, 1, 2, 1))
sketch10.addConstraint(Sketcher.Constraint("Horizontal", 2, 1, 7, 1))
sketch10.addConstraint(Sketcher.Constraint("Horizontal", 1, 1, 8, 1))
sketch10.addConstraint(Sketcher.Constraint("Horizontal", 7, 1, 9, 1))
sketch10.addConstraint(Sketcher.Constraint("Horizontal", 9, 1, 11, 1))
sketch10.addConstraint(Sketcher.Constraint("Horizontal", 8, 1, 12, 1))
sketch10.addConstraint(Sketcher.Constraint("Horizontal", 11, 1, 13, 1))
sketch10.addConstraint(Sketcher.Constraint("Horizontal", 10, 1, 14, 1))
sketch10.addConstraint(Sketcher.Constraint("Horizontal", 13, 1, 15, 1))
sketch10.addConstraint(Sketcher.Constraint("Horizontal", 12, 1, 16, 1))
sketch10.addConstraint(Sketcher.Constraint("Horizontal", 15, 1, 17, 1))
sketch10.addConstraint(Sketcher.Constraint("Horizontal", 14, 1, 18, 1))
sketch10.addConstraint(Sketcher.Constraint("Horizontal", 17, 1, 19, 1))
sketch10.addConstraint(Sketcher.Constraint("Horizontal", 16, 1, 20, 1))
sketch10.addConstraint(Sketcher.Constraint("Horizontal", 19, 1, 21, 1))
sketch10.addConstraint(Sketcher.Constraint("Horizontal", 21, 1, 23, 1))
sketch10.addConstraint(Sketcher.Constraint("Horizontal", 20, 1, 24, 1))
sketch10.addConstraint(Sketcher.Constraint("Horizontal", 23, 1, 25, 1))
sketch10.addConstraint(Sketcher.Constraint("Vertical", 7, 3, 5, 2))
sketch10.addConstraint(Sketcher.Constraint("Radius", 0, Q("0.376 in")))
sketch10.addConstraint(Sketcher.Constraint("DistanceX", -1, 1, 10, 3, Q("4.5 in")))
sketch10.addConstraint(Sketcher.Constraint("DistanceX", -1, 1, 14, 3, Q("3.6 in")))
sketch10.addConstraint(Sketcher.Constraint("DistanceX", -1, 1, 26, 3, Q("0.9 in")))
sketch10.addConstraint(Sketcher.Constraint("Radius", 1, Q("8.208042 mm")))
sketch10.addConstraint(Sketcher.Constraint("DistanceY", 1, 1, -1, 1, Q("24.668 mm")))
sketch10.addConstraint(Sketcher.Constraint("DistanceX", 0, 1, 1, 3, Q("5.077401 mm")))
sketch10.addConstraint(Sketcher.Constraint("DistanceX", 5, 1, 5, 2, Q("137.282625 mm")))
sketch10.addConstraint(Sketcher.Constraint("DistanceY", 4, 2, 4, 1, Q("22.872254 mm")))
sketch10.addConstraint(Sketcher.Constraint("DistanceY", 0, 3, -1, 1, Q("27.665541 mm")))
pad10 = body10.newObject("PartDesign::Pad", "Pad009")
pad10.Profile = sketch10
pad10.Length = Q("1 in")
pad10.Reversed = True

doc.recompute()
